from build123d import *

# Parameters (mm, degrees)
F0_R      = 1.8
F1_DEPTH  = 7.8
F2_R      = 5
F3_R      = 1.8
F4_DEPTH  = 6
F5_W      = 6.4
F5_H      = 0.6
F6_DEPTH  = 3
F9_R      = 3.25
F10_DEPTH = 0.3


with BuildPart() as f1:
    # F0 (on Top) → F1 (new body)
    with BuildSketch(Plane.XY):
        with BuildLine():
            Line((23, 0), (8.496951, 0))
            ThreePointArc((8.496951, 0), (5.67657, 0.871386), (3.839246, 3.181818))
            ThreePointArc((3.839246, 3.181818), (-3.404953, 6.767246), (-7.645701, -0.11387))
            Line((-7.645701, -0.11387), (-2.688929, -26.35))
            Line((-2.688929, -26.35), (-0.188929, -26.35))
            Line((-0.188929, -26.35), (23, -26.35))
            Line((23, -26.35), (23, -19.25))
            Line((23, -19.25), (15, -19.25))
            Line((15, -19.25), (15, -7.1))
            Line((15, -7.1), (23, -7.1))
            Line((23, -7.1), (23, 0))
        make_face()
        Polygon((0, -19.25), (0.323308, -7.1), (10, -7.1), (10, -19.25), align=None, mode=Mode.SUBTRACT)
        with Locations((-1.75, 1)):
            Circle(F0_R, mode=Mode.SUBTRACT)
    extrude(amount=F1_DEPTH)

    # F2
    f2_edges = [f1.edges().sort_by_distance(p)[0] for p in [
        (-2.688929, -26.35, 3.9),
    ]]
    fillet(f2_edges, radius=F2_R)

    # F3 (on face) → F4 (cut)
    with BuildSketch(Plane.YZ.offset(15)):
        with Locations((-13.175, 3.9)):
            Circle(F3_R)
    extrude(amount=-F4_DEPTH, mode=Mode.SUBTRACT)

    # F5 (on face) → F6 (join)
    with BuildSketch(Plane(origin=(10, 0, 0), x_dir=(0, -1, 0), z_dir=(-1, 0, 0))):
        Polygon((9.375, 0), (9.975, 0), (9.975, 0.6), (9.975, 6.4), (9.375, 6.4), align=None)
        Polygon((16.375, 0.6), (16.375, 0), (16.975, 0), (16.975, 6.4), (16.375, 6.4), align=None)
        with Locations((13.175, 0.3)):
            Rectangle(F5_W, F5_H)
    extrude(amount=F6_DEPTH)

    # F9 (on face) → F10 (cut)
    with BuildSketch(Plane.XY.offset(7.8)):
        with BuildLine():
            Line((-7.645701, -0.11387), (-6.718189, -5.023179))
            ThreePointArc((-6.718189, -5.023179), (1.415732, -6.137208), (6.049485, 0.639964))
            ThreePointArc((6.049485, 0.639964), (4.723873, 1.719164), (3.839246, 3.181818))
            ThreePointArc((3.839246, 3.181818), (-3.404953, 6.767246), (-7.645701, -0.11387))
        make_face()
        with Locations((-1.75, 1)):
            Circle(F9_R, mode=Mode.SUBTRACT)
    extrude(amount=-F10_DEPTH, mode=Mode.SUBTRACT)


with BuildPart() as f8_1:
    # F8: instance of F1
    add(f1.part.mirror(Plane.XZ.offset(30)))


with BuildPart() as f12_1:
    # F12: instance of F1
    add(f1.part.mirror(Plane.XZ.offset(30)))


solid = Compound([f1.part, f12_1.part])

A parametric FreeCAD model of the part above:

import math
import FreeCAD as App
import Part
import Sketcher


def edges_at(feature, points):
    """Names of the edges that pass closest to the given points."""
    edges = feature.Shape.Edges
    near = lambda p: min(range(len(edges)), key=lambda i: edges[i].distToShape(Part.Vertex(*p))[0])
    return sorted({f"Edge{near(p) + 1}" for p in points})


def add_polygon(sketch, points):
    """Adds a closed chain of lines whose ends are joined by coincident constraints."""
    first, n = sketch.GeometryCount, len(points)
    for a, b in zip(points, points[1:] + points[:1]):
        sketch.addGeometry(Part.LineSegment(App.Vector(*a, 0), App.Vector(*b, 0)), False)
    for i in range(n):
        sketch.addConstraint(Sketcher.Constraint("Coincident", first + i, 2, first + (i + 1) % n, 1))

doc = App.newDocument("Part")
params = doc.addObject("Spreadsheet::Sheet", "Params")
for row, (alias, value) in enumerate([
    ("sketch1_radius", "4.999999 mm"),
    ("sketch1_radius2", "6 mm"),
    ("sketch1_diameter", "3.6 mm"),
    ("sketch1_width", "8 mm"),
    ("sketch1_width2", "10 mm"),
    ("pad1_length", "7.8 mm"),
    ("fillet_radius", "5 mm"),
    ("sketch2_diameter", "3.6 mm"),
    ("pocket1_length", "6 mm"),
    ("sketch3_width", "7.6 mm"),
    ("sketch3_width2", "0.6 mm"),
    ("sketch3_height", "5.8 mm"),
    ("pad2_length", "3 mm"),
    ("sketch4_radius", "5.000001 mm"),
    ("sketch4_radius2", "6 mm"),
    ("sketch4_diameter", "6.5 mm"),
    ("pocket2_length", "0.3 mm"),
], start=1):
    params.set(f"A{row}", alias)
    params.set(f"B{row}", "=" + value)
    params.setAlias(f"B{row}", alias)

body = doc.addObject("PartDesign::Body", "Body")

# Sketch on XY plane
sketch1 = doc.addObject("Sketcher::SketchObject", "Sketch")
body.addObject(sketch1)
sketch1.AttachmentSupport = (doc.XY_Plane, [""])
sketch1.MapMode = "FlatFace"
sketch1.addGeometry(Part.LineSegment(App.Vector(23, 0, 0), App.Vector(8.496951, 0, 0)), False)  # 0
sketch1.addGeometry(Part.ArcOfCircle(Part.Circle(App.Vector(8.49695, 4.999999, 0), App.Vector(0, 0, 1), 4.999999), math.radians(-158.676317), math.radians(-89.999992)), False)  # 1
sketch1.addGeometry(Part.ArcOfCircle(Part.Circle(App.Vector(-1.75, 1, 0), App.Vector(0, 0, 1), 6), math.radians(21.323687), math.radians(190.698738)), False)  # 2
sketch1.addGeometry(Part.LineSegment(App.Vector(-7.645701, -0.11387, 0), App.Vector(-2.688929, -26.35, 0)), False)  # 3
sketch1.addGeometry(Part.LineSegment(App.Vector(-2.688929, -26.35, 0), App.Vector(23, -26.35, 0)), False)  # 4
sketch1.addGeometry(Part.LineSegment(App.Vector(23, -26.35, 0), App.Vector(23, -19.25, 0)), False)  # 5
sketch1.addGeometry(Part.LineSegment(App.Vector(23, -19.25, 0), App.Vector(15, -19.25, 0)), False)  # 6
sketch1.addGeometry(Part.LineSegment(App.Vector(15, -19.25, 0), App.Vector(15, -7.1, 0)), False)  # 7
sketch1.addGeometry(Part.LineSegment(App.Vector(15, -7.1, 0), App.Vector(23, -7.1, 0)), False)  # 8
sketch1.addGeometry(Part.LineSegment(App.Vector(23, -7.1, 0), App.Vector(23, 0, 0)), False)  # 9
add_polygon(sketch1, [(10, -19.25), (0, -19.25), (0.323308, -7.1), (10, -7.1)])  # lines 10-13
sketch1.addGeometry(Part.Circle(App.Vector(-1.75, 1, 0), App.Vector(0, 0, 1), 1.8), False)  # 14
sketch1.addConstraint(Sketcher.Constraint("Tangent", 0, 2, 1, 2))
sketch1.addConstraint(Sketcher.Constraint("Tangent", 1, 1, 2, 1))
sketch1.addConstraint(Sketcher.Constraint("Tangent", 2, 2, 3, 1))
sketch1.addConstraint(Sketcher.Constraint("Coincident", 3, 2, 4, 1))
sketch1.addConstraint(Sketcher.Constraint("Coincident", 4, 2, 5, 1))
sketch1.addConstraint(Sketcher.Constraint("Coincident", 5, 2, 6, 1))
sketch1.addConstraint(Sketcher.Constraint("Coincident", 6, 2, 7, 1))
sketch1.addConstraint(Sketcher.Constraint("Coincident", 7, 2, 8, 1))
sketch1.addConstraint(Sketcher.Constraint("Coincident", 8, 2, 9, 1))
sketch1.addConstraint(Sketcher.Constraint("Coincident", 9, 2, 0, 1))
sketch1.addConstraint(Sketcher.Constraint("Horizontal", 0))
sketch1.addConstraint(Sketcher.Constraint("Horizontal", 4))
sketch1.addConstraint(Sketcher.Constraint("Vertical", 5))
sketch1.addConstraint(Sketcher.Constraint("Horizontal", 6))
sketch1.addConstraint(Sketcher.Constraint("Vertical", 7))
sketch1.addConstraint(Sketcher.Constraint("Horizontal", 8))
sketch1.addConstraint(Sketcher.Constraint("Vertical", 9))
sketch1.addConstraint(Sketcher.Constraint("Horizontal", 10))
sketch1.addConstraint(Sketcher.Constraint("Horizontal", 12))
sketch1.addConstraint(Sketcher.Constraint("Vertical", 13))
sketch1.addConstraint(Sketcher.Constraint("Coincident", 14, 3, 2, 3))
sketch1.addConstraint(Sketcher.Constraint("PointOnObject", 0, 2, -1))
sketch1.addConstraint(Sketcher.Constraint("PointOnObject", 10, 2, -2))
sketch1.addConstraint(Sketcher.Constraint("Horizontal", 6, 2, 10, 2))
sketch1.addConstraint(Sketcher.Constraint("Horizontal", 8, 2, 11, 2))
sketch1.addConstraint(Sketcher.Constraint("Vertical", 5, 2, 8, 2))
sketch1.addConstraint(Sketcher.Constraint("Equal", 5, 9))
sketch1.addConstraint(Sketcher.Constraint("Radius", 1, 4.999999))
sketch1.addConstraint(Sketcher.Constraint("Radius", 2, 6.0))
sketch1.addConstraint(Sketcher.Constraint("Diameter", 14, 3.6))
sketch1.addConstraint(Sketcher.Constraint("DistanceX", 6, 2, 6, 1, 8.0))
sketch1.addConstraint(Sketcher.Constraint("DistanceX", 10, 2, 10, 1, 10.0))
sketch1.addConstraint(Sketcher.Constraint("DistanceY", 5, 1, 5, 2, 7.1))
sketch1.addConstraint(Sketcher.Constraint("DistanceY", -1, 1, 2, 3, 1.0))
sketch1.addConstraint(Sketcher.Constraint("DistanceX", -1, 1, 4, 2, 23.0))
sketch1.addConstraint(Sketcher.Constraint("DistanceY", 7, 1, 7, 2, 12.15))
sketch1.addConstraint(Sketcher.Constraint("DistanceX", 2, 3, -1, 1, 1.75))
sketch1.addConstraint(Sketcher.Constraint("Distance", 11, 12.154301))
sketch1.addConstraint(Sketcher.Constraint("DistanceX", 4, 1, 4, 2, 25.688929))
sketch1.setExpression("Constraints[31]", "Params.sketch1_radius")
sketch1.setExpression("Constraints[32]", "Params.sketch1_radius2")
sketch1.setExpression("Constraints[33]", "Params.sketch1_diameter")
sketch1.setExpression("Constraints[34]", "Params.sketch1_width")
sketch1.setExpression("Constraints[35]", "Params.sketch1_width2")
pad1 = doc.addObject("PartDesign::Pad", "Pad")
body.addObject(pad1)
pad1.Profile = sketch1
pad1.setExpression("Length", "Params.pad1_length")
doc.recompute()

fillet = doc.addObject("PartDesign::Fillet", "Fillet")
body.addObject(fillet)
fillet.Base = (pad1, edges_at(pad1, [(-2.689, -26.35, 3.9)]))
fillet.setExpression("Radius", "Params.fillet_radius")

# Sketch on YZ plane
sketch2 = doc.addObject("Sketcher::SketchObject", "Sketch001")
body.addObject(sketch2)
sketch2.AttachmentSupport = (doc.YZ_Plane, [""])
sketch2.MapMode = "FlatFace"
sketch2.AttachmentOffset = App.Placement(App.Vector(0, 0, 15), App.Rotation())
sketch2.addGeometry(Part.Circle(App.Vector(-13.175, 3.9, 0), App.Vector(0, 0, 1), 1.8), False)
sketch2.addConstraint(Sketcher.Constraint("Diameter", 0, 3.6))
sketch2.addConstraint(Sketcher.Constraint("DistanceY", -1, 1, 0, 3, 3.9))
sketch2.addConstraint(Sketcher.Constraint("DistanceX", 0, 3, -1, 1, 13.175))
sketch2.setExpression("Constraints[0]", "Params.sketch2_diameter")
pocket1 = doc.addObject("PartDesign::Pocket", "Pocket")
body.addObject(pocket1)
pocket1.Profile = sketch2
pocket1.setExpression("Length", "Params.pocket1_length")

# Sketch on YZ plane
sketch3 = doc.addObject("Sketcher::SketchObject", "Sketch002")
body.addObject(sketch3)
sketch3.AttachmentSupport = (doc.YZ_Plane, [""])
sketch3.MapMode = "FlatFace"
sketch3.AttachmentOffset = App.Placement(App.Vector(0, 0, 10), App.Rotation())
add_polygon(sketch3, [(-9.375, 0), (-16.975, 0), (-16.975, 6.4), (-16.375, 6.4), (-16.375, 0.6), (-9.975, 0.6), (-9.975, 6.4), (-9.375, 6.4)])  # lines 0-7
sketch3.addConstraint(Sketcher.Constraint("Horizontal", 0))
sketch3.addConstraint(Sketcher.Constraint("Vertical", 1))
sketch3.addConstraint(Sketcher.Constraint("Horizontal", 2))
sketch3.addConstraint(Sketcher.Constraint("Vertical", 3))
sketch3.addConstraint(Sketcher.Constraint("Horizontal", 4))
sketch3.addConstraint(Sketcher.Constraint("Vertical", 5))
sketch3.addConstraint(Sketcher.Constraint("Horizontal", 6))
sketch3.addConstraint(Sketcher.Constraint("Vertical", 7))
sketch3.addConstraint(Sketcher.Constraint("PointOnObject", 0, 2, -1))
sketch3.addConstraint(Sketcher.Constraint("Horizontal", 2, 2, 5, 2))
sketch3.addConstraint(Sketcher.Constraint("Equal", 2, 6))
sketch3.addConstraint(Sketcher.Constraint("Equal", 4, 1))
sketch3.addConstraint(Sketcher.Constraint("DistanceX", 0, 2, 0, 1, 7.6))
sketch3.addConstraint(Sketcher.Constraint("DistanceX", 2, 1, 2, 2, 0.6))
sketch3.addConstraint(Sketcher.Constraint("DistanceY", 3, 2, 3, 1, 5.8))
sketch3.addConstraint(Sketcher.Constraint("DistanceX", 0, 2, -1, 1, 16.975))
sketch3.setExpression("Constraints[20]", "Params.sketch3_width")
sketch3.setExpression("Constraints[21]", "Params.sketch3_width2")
sketch3.setExpression("Constraints[22]", "Params.sketch3_height")
pad2 = doc.addObject("PartDesign::Pad", "Pad001")
body.addObject(pad2)
pad2.Profile = sketch3
pad2.setExpression("Length", "Params.pad2_length")
pad2.Reversed = True

# Sketch on XY plane
sketch4 = doc.addObject("Sketcher::SketchObject", "Sketch003")
body.addObject(sketch4)
sketch4.AttachmentSupport = (doc.XY_Plane, [""])
sketch4.MapMode = "FlatFace"
sketch4.AttachmentOffset = App.Placement(App.Vector(0, 0, 7.8), App.Rotation())
sketch4.addGeometry(Part.LineSegment(App.Vector(-7.645701, -0.11387, 0), App.Vector(-6.718189, -5.023179, 0)), False)
sketch4.addGeometry(Part.ArcOfCircle(Part.Circle(App.Vector(-1.749999, 0.999999, 0), App.Vector(0, 0, 1), 7.80779), math.radians(-129.517352), math.radians(-2.642978)), False)
sketch4.addGeometry(Part.ArcOfCircle(Part.Circle(App.Vector(8.496952, 5, 0), App.Vector(0, 0, 1), 5.000001), math.radians(-158.676314), math.radians(-119.307279)), False)
sketch4.addGeometry(Part.ArcOfCircle(Part.Circle(App.Vector(-1.75, 1, 0), App.Vector(0, 0, 1), 6), math.radians(21.323687), math.radians(190.698738)), False)
sketch4.addGeometry(Part.Circle(App.Vector(-1.75, 1, 0), App.Vector(0, 0, 1), 3.25), False)
sketch4.addConstraint(Sketcher.Constraint("Coincident", 0, 2, 1, 1))
sketch4.addConstraint(Sketcher.Constraint("Coincident", 1, 2, 2, 2))
sketch4.addConstraint(Sketcher.Constraint("Tangent", 2, 1, 3, 1))
sketch4.addConstraint(Sketcher.Constraint("Tangent", 3, 2, 0, 1))
sketch4.addConstraint(Sketcher.Constraint("Coincident", 3, 3, 1, 3))
sketch4.addConstraint(Sketcher.Constraint("Coincident", 4, 3, 1, 3))
sketch4.addConstraint(Sketcher.Constraint("Radius", 2, 5.000001))
sketch4.addConstraint(Sketcher.Constraint("Radius", 3, 6.0))
sketch4.addConstraint(Sketcher.Constraint("Diameter", 4, 6.5))
sketch4.addConstraint(Sketcher.Constraint("DistanceY", -1, 1, 1, 3, 0.999999))
sketch4.addConstraint(Sketcher.Constraint("DistanceY", -1, 1, 2, 3, 5.0))
sketch4.addConstraint(Sketcher.Constraint("DistanceX", 1, 3, -1, 1, 1.749999))
sketch4.addConstraint(Sketcher.Constraint("Radius", 1, 7.80779))
sketch4.addConstraint(Sketcher.Constraint("DistanceX", 3, 2, -1, 1, 7.645701))
sketch4.setExpression("Constraints[6]", "Params.sketch4_radius")
sketch4.setExpression("Constraints[7]", "Params.sketch4_radius2")
sketch4.setExpression("Constraints[8]", "Params.sketch4_diameter")
pocket2 = doc.addObject("PartDesign::Pocket", "Pocket001")
body.addObject(pocket2)
pocket2.Profile = sketch4
pocket2.setExpression("Length", "Params.pocket2_length")
body2 = doc.addObject("PartDesign::Body", "Body001")
doc.recompute()

mirroring = doc.addObject("Part::Mirroring", "Mirroring")
mirroring.Source = body
mirroring.Base = App.Vector(0, -30, 0)
mirroring.Normal = App.Vector(0, -1, 0)
body2.BaseFeature = mirroring
doc.recompute()
body3 = doc.addObject("PartDesign::Body", "Body002")
doc.recompute()

mirroring2 = doc.addObject("Part::Mirroring", "Mirroring001")
mirroring2.Source = body
mirroring2.Base = App.Vector(0, -30, 0)
mirroring2.Normal = App.Vector(0, -1, 0)
body3.BaseFeature = mirroring2
doc.recompute()
body2.Visibility = False
mirroring.Visibility = False
mirroring2.Visibility = False

doc.recompute()
